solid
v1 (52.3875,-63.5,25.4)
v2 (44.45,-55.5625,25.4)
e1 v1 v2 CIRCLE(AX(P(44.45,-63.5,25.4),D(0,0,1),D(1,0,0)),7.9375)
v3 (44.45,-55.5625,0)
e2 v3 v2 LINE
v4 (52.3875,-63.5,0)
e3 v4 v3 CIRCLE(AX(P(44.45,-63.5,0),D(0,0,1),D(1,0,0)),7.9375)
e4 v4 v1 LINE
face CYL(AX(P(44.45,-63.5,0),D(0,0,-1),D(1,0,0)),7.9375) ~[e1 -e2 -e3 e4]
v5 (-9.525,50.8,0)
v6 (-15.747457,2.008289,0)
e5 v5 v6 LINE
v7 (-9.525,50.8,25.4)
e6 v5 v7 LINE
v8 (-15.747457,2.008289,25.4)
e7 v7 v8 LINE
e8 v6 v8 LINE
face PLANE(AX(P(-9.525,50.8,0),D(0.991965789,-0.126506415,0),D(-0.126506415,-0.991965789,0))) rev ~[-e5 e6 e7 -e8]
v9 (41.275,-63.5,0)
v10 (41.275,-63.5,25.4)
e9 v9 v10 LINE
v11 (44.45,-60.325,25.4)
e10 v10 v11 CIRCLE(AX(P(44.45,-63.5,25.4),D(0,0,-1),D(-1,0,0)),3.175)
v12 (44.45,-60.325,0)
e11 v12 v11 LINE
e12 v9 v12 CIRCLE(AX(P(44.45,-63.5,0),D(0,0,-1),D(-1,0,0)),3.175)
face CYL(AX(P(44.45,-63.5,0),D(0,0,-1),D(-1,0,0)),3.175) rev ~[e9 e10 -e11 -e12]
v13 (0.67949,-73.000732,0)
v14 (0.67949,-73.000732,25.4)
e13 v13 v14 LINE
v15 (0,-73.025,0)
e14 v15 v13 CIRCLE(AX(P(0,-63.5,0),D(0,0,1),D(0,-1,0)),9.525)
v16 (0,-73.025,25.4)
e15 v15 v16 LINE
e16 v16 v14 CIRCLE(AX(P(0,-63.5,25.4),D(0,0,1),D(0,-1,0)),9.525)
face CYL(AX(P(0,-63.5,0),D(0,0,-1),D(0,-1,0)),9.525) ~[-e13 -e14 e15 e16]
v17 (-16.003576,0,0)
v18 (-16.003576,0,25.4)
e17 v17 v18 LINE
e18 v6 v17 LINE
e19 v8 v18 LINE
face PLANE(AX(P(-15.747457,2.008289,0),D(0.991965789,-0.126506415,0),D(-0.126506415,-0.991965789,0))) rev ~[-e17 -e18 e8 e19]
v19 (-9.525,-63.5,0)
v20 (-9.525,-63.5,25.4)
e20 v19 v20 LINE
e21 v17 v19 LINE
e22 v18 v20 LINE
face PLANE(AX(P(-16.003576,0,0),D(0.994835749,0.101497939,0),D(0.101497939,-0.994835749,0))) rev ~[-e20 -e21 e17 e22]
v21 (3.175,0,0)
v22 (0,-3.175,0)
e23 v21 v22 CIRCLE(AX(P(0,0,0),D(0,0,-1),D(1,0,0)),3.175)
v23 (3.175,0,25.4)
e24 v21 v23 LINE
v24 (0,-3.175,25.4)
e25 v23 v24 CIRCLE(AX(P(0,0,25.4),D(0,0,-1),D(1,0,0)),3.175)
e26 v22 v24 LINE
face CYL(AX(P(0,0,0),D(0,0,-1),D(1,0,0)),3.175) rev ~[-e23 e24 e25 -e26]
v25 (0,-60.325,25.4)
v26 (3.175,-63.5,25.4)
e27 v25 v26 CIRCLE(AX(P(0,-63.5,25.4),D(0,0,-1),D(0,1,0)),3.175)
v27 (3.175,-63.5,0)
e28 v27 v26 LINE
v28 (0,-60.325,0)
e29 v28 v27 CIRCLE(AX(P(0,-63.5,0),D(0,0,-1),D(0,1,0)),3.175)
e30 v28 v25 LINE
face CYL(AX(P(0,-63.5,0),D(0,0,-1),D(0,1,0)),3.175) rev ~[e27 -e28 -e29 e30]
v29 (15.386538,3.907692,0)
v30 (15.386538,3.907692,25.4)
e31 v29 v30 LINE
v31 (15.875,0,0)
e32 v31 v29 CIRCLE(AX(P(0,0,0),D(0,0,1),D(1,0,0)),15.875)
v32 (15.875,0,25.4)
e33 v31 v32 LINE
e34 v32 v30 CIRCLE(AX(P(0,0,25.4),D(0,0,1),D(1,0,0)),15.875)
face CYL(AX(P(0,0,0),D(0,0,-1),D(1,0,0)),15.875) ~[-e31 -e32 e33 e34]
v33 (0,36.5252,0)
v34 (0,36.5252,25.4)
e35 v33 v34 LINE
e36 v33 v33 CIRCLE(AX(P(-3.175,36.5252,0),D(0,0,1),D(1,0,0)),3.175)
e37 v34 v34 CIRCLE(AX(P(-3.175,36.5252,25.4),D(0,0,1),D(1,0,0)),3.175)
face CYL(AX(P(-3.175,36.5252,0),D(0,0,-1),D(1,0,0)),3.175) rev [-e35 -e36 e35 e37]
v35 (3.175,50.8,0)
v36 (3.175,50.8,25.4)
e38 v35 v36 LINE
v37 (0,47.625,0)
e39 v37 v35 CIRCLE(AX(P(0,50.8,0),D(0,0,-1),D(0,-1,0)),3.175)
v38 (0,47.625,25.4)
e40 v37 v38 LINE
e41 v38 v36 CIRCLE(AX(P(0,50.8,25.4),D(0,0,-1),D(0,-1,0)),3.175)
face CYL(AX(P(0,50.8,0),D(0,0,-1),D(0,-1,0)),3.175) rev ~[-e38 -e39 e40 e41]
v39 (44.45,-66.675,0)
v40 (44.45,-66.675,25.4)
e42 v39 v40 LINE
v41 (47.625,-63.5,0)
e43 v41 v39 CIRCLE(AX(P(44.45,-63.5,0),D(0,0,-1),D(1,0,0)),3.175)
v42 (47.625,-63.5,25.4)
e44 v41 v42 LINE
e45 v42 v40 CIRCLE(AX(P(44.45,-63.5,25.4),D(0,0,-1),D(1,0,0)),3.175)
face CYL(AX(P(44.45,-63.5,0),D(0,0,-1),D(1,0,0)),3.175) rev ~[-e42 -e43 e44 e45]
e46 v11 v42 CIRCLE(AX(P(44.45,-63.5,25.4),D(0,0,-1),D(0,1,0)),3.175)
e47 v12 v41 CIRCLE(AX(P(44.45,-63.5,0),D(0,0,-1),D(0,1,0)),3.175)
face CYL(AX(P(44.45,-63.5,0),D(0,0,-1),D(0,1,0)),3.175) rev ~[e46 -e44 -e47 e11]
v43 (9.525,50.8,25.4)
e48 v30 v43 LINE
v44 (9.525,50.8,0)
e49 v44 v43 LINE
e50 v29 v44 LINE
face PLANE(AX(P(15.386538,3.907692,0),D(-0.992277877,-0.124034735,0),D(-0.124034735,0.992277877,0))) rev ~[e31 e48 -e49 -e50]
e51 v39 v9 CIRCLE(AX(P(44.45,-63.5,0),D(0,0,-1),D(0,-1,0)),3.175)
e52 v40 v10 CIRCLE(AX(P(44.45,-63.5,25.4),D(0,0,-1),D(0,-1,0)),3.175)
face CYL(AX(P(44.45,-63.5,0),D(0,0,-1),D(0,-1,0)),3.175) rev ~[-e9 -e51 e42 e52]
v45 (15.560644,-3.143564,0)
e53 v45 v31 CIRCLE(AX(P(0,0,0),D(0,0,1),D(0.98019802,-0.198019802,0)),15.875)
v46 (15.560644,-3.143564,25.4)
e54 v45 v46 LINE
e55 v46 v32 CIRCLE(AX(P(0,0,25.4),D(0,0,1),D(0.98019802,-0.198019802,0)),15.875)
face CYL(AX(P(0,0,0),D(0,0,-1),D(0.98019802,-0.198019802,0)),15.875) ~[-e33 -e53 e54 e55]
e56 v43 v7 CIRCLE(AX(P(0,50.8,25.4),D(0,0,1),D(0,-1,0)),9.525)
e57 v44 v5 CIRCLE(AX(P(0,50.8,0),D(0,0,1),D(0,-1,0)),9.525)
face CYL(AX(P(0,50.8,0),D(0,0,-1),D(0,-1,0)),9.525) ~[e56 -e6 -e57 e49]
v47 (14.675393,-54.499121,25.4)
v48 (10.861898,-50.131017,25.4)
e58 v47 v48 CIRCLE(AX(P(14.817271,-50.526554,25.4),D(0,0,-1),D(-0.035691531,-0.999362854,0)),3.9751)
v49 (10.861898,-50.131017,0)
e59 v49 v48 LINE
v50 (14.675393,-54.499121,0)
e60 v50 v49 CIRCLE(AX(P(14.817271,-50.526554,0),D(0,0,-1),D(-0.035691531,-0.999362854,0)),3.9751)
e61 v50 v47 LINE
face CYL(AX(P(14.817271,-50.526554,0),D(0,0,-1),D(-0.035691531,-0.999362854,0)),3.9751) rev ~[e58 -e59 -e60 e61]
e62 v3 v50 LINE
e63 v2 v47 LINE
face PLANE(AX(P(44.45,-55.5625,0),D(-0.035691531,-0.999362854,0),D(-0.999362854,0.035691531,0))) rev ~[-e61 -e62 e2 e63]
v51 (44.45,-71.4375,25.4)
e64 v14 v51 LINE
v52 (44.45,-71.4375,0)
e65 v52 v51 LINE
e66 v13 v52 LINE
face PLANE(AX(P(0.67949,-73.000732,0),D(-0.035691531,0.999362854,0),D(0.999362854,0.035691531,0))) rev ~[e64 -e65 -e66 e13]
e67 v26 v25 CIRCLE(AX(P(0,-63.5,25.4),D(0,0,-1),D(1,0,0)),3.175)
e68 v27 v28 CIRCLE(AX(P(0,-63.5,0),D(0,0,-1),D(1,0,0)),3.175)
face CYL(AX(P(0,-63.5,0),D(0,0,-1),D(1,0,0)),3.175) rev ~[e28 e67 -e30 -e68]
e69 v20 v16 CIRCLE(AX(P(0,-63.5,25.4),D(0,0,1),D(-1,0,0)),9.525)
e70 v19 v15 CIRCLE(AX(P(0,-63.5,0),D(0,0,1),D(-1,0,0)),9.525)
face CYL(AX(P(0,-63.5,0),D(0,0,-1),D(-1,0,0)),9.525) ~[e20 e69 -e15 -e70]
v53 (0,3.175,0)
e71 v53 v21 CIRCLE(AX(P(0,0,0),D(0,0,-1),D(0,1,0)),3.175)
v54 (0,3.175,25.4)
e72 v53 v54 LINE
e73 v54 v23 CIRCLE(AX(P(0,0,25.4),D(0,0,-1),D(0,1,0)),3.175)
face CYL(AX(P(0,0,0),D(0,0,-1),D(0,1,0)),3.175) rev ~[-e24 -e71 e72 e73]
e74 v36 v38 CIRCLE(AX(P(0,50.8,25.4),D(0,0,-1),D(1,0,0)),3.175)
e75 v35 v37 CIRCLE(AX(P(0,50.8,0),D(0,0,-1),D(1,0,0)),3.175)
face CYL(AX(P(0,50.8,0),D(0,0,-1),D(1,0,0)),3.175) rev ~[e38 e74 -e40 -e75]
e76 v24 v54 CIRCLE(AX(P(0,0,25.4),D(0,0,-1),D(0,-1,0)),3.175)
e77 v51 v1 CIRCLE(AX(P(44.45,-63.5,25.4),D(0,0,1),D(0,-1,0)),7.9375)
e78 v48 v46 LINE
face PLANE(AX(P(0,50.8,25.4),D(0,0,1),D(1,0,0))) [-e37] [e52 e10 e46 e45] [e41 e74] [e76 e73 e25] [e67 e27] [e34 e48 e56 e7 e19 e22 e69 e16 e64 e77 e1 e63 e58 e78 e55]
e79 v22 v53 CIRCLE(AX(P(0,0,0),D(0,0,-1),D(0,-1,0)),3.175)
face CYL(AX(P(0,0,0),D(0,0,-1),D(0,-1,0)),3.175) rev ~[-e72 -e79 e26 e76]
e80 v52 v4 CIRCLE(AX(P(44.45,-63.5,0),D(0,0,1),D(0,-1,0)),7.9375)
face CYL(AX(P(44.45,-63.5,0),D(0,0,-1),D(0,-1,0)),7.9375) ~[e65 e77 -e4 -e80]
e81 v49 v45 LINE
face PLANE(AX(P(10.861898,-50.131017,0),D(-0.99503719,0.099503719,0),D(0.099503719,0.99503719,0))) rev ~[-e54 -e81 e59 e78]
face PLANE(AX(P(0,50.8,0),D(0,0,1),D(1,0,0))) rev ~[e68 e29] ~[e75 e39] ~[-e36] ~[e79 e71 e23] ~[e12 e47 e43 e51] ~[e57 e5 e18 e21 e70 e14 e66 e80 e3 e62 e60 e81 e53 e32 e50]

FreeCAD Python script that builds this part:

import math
import FreeCAD as App
import Part
import Sketcher

V = App.Vector
Q = App.Units.Quantity

doc = App.newDocument("Part")
body = doc.addObject("PartDesign::Body", "Body")

# Sketch on XY plane
sketch1 = body.newObject("Sketcher::SketchObject", "Sketch")
sketch1.AttachmentSupport = (doc.getObject("XY_Plane"), [""])
sketch1.MapMode = "FlatFace"
sketch1.addGeometry(Part.ArcOfCircle(Part.Circle(V(0, -63.5, 0), V(0, 0, 1), 9.525), math.radians(-90), math.radians(-85.909183)), False)
sketch1.addGeometry(Part.LineSegment(V(0.67949, -73.000732, 0), V(44.45, -71.4375, 0)), False)
sketch1.addGeometry(Part.ArcOfCircle(Part.Circle(V(44.45, -63.5, 0), V(0, 0, 1), 7.9375), math.radians(-90), math.radians(0)), False)
sketch1.addGeometry(Part.ArcOfCircle(Part.Circle(V(44.45, -63.5, 0), V(0, 0, 1), 7.9375), math.radians(0), math.radians(90)), False)
sketch1.addGeometry(Part.LineSegment(V(44.45, -55.5625, 0), V(14.675393, -54.499121, 0)), False)
sketch1.addGeometry(Part.ArcOfCircle(Part.Circle(V(14.817271, -50.526554, 0), V(0, 0, 1), 3.9751), math.radians(174.289407), math.radians(267.954592)), False)
sketch1.addGeometry(Part.LineSegment(V(10.861898, -50.131017, 0), V(15.560644, -3.143564, 0)), False)
sketch1.addGeometry(Part.ArcOfCircle(Part.Circle(V(0, 0, 0), V(0, 0, 1), 15.875), math.radians(-11.421186), math.radians(0)), False)
sketch1.addGeometry(Part.ArcOfCircle(Part.Circle(V(0, 0, 0), V(0, 0, 1), 15.875), math.radians(0), math.radians(14.250033)), False)
sketch1.addGeometry(Part.LineSegment(V(15.386538, 3.907692, 0), V(9.525, 50.8, 0)), False)
sketch1.addGeometry(Part.ArcOfCircle(Part.Circle(V(0, 50.8, 0), V(0, 0, 1), 9.525), math.radians(0), math.radians(180)), False)
sketch1.addGeometry(Part.LineSegment(V(-9.525, 50.8, 0), V(-15.747457, 2.008289, 0)), False)
sketch1.addGeometry(Part.LineSegment(V(-15.747457, 2.008289, 0), V(-16.003576, 0, 0)), False)
sketch1.addGeometry(Part.LineSegment(V(-16.003576, 0, 0), V(-9.525, -63.5, 0)), False)
sketch1.addGeometry(Part.ArcOfCircle(Part.Circle(V(0, -63.5, 0), V(0, 0, 1), 9.525), math.radians(180), math.radians(270)), False)
sketch1.addGeometry(Part.ArcOfCircle(Part.Circle(V(44.45, -63.5, 0), V(0, 0, 1), 3.175), math.radians(180), math.radians(270)), False)
sketch1.addGeometry(Part.ArcOfCircle(Part.Circle(V(44.45, -63.5, 0), V(0, 0, 1), 3.175), math.radians(90), math.radians(180)), False)
sketch1.addGeometry(Part.ArcOfCircle(Part.Circle(V(44.45, -63.5, 0), V(0, 0, 1), 3.175), math.radians(0), math.radians(90)), False)
sketch1.addGeometry(Part.ArcOfCircle(Part.Circle(V(44.45, -63.5, 0), V(0, 0, 1), 3.175), math.radians(-90), math.radians(0)), False)
sketch1.addGeometry(Part.ArcOfCircle(Part.Circle(V(0, -63.5, 0), V(0, 0, 1), 3.175), math.radians(90), math.radians(360)), False)
sketch1.addGeometry(Part.ArcOfCircle(Part.Circle(V(0, -63.5, 0), V(0, 0, 1), 3.175), math.radians(0), math.radians(90)), False)
sketch1.addGeometry(Part.ArcOfCircle(Part.Circle(V(0, 0, 0), V(0, 0, 1), 3.175), math.radians(0), math.radians(90)), False)
sketch1.addGeometry(Part.ArcOfCircle(Part.Circle(V(0, 0, 0), V(0, 0, 1), 3.175), math.radians(-90), math.radians(0)), False)
sketch1.addGeometry(Part.ArcOfCircle(Part.Circle(V(0, 0, 0), V(0, 0, 1), 3.175), math.radians(90), math.radians(270)), False)
sketch1.addGeometry(Part.Circle(V(-3.175, 36.5252, 0), V(0, 0, 1), 3.175), False)
sketch1.addGeometry(Part.ArcOfCircle(Part.Circle(V(0, 50.8, 0), V(0, 0, 1), 3.175), math.radians(0), math.radians(270)), False)
sketch1.addGeometry(Part.ArcOfCircle(Part.Circle(V(0, 50.8, 0), V(0, 0, 1), 3.175), math.radians(-90), math.radians(0)), False)
sketch1.addConstraint(Sketcher.Constraint("Coincident", 0, 2, 1, 1))
sketch1.addConstraint(Sketcher.Constraint("Coincident", 1, 2, 2, 1))
sketch1.addConstraint(Sketcher.Constraint("Coincident", 2, 2, 3, 1))
sketch1.addConstraint(Sketcher.Constraint("Coincident", 3, 2, 4, 1))
sketch1.addConstraint(Sketcher.Constraint("Coincident", 4, 2, 5, 2))
sketch1.addConstraint(Sketcher.Constraint("Coincident", 5, 1, 6, 1))
sketch1.addConstraint(Sketcher.Constraint("Coincident", 6, 2, 7, 1))
sketch1.addConstraint(Sketcher.Constraint("Coincident", 7, 2, 8, 1))
sketch1.addConstraint(Sketcher.Constraint("Coincident", 8, 2, 9, 1))
sketch1.addConstraint(Sketcher.Constraint("Coincident", 9, 2, 10, 1))
sketch1.addConstraint(Sketcher.Constraint("Coincident", 10, 2, 11, 1))
sketch1.addConstraint(Sketcher.Constraint("Coincident", 11, 2, 12, 1))
sketch1.addConstraint(Sketcher.Constraint("Coincident", 12, 2, 13, 1))
sketch1.addConstraint(Sketcher.Constraint("Coincident", 13, 2, 14, 1))
sketch1.addConstraint(Sketcher.Constraint("Coincident", 14, 2, 0, 1))
sketch1.addConstraint(Sketcher.Constraint("Coincident", 15, 1, 16, 2))
sketch1.addConstraint(Sketcher.Constraint("Coincident", 16, 1, 17, 2))
sketch1.addConstraint(Sketcher.Constraint("Coincident", 17, 1, 18, 2))
sketch1.addConstraint(Sketcher.Constraint("Coincident", 18, 1, 15, 2))
sketch1.addConstraint(Sketcher.Constraint("Coincident", 19, 1, 20, 2))
sketch1.addConstraint(Sketcher.Constraint("Coincident", 20, 1, 19, 2))
sketch1.addConstraint(Sketcher.Constraint("Coincident", 21, 1, 22, 2))
sketch1.addConstraint(Sketcher.Constraint("Coincident", 22, 1, 23, 2))
sketch1.addConstraint(Sketcher.Constraint("Coincident", 23, 1, 21, 2))
sketch1.addConstraint(Sketcher.Constraint("Coincident", 25, 1, 26, 2))
sketch1.addConstraint(Sketcher.Constraint("Coincident", 26, 1, 25, 2))
sketch1.addConstraint(Sketcher.Constraint("Coincident", 7, 3, -1, 1))
sketch1.addConstraint(Sketcher.Constraint("Coincident", 8, 3, -1, 1))
sketch1.addConstraint(Sketcher.Constraint("Coincident", 21, 3, -1, 1))
sketch1.addConstraint(Sketcher.Constraint("Coincident", 22, 3, -1, 1))
sketch1.addConstraint(Sketcher.Constraint("Coincident", 3, 3, 2, 3))
sketch1.addConstraint(Sketcher.Constraint("Coincident", 14, 3, 0, 3))
sketch1.addConstraint(Sketcher.Constraint("Coincident", 15, 3, 2, 3))
sketch1.addConstraint(Sketcher.Constraint("Coincident", 16, 3, 2, 3))
sketch1.addConstraint(Sketcher.Constraint("Coincident", 17, 3, 2, 3))
sketch1.addConstraint(Sketcher.Constraint("Coincident", 19, 3, 0, 3))
sketch1.addConstraint(Sketcher.Constraint("Coincident", 25, 3, 10, 3))
sketch1.addConstraint(Sketcher.Constraint("PointOnObject", 0, 3, -2))
sketch1.addConstraint(Sketcher.Constraint("PointOnObject", 10, 3, -2))
sketch1.addConstraint(Sketcher.Constraint("PointOnObject", 20, 3, -2))
sketch1.addConstraint(Sketcher.Constraint("PointOnObject", 26, 3, -2))
sketch1.addConstraint(Sketcher.Constraint("PointOnObject", 7, 2, -1))
sketch1.addConstraint(Sketcher.Constraint("PointOnObject", 12, 2, -1))
sketch1.addConstraint(Sketcher.Constraint("PointOnObject", 14, 2, -2))
sketch1.addConstraint(Sketcher.Constraint("PointOnObject", 19, 1, -2))
sketch1.addConstraint(Sketcher.Constraint("PointOnObject", 21, 1, -1))
sketch1.addConstraint(Sketcher.Constraint("PointOnObject", 22, 1, -2))
sketch1.addConstraint(Sketcher.Constraint("PointOnObject", 23, 1, -2))
sketch1.addConstraint(Sketcher.Constraint("PointOnObject", 26, 1, -2))
sketch1.addConstraint(Sketcher.Constraint("Diameter", 24, Q("0.25 in")))
sketch1.addConstraint(Sketcher.Constraint("DistanceY", -1, 1, 10, 3, Q("2 in")))
sketch1.addConstraint(Sketcher.Constraint("DistanceY", -1, 1, 9, 2, Q("2 in")))
sketch1.addConstraint(Sketcher.Constraint("DistanceY", -1, 1, 10, 2, Q("2 in")))
sketch1.addConstraint(Sketcher.Constraint("DistanceY", -1, 1, 25, 1, Q("2 in")))
sketch1.addConstraint(Sketcher.Constraint("Radius", 0, Q("0.375 in")))
sketch1.addConstraint(Sketcher.Constraint("Radius", 2, Q("0.3125 in")))
sketch1.addConstraint(Sketcher.Constraint("Radius", 7, Q("0.625 in")))
sketch1.addConstraint(Sketcher.Constraint("Radius", 10, Q("0.375 in")))
sketch1.addConstraint(Sketcher.Constraint("Radius", 15, Q("0.125 in")))
sketch1.addConstraint(Sketcher.Constraint("Radius", 18, Q("0.125 in")))
sketch1.addConstraint(Sketcher.Constraint("Radius", 19, Q("0.125 in")))
sketch1.addConstraint(Sketcher.Constraint("Radius", 21, Q("0.125 in")))
sketch1.addConstraint(Sketcher.Constraint("Radius", 25, Q("0.125 in")))
sketch1.addConstraint(Sketcher.Constraint("DistanceY", 0, 3, -1, 1, Q("2.5 in")))
sketch1.addConstraint(Sketcher.Constraint("DistanceY", 2, 3, -1, 1, Q("2.5 in")))
sketch1.addConstraint(Sketcher.Constraint("DistanceY", 2, 2, -1, 1, Q("2.5 in")))
sketch1.addConstraint(Sketcher.Constraint("DistanceY", 13, 2, -1, 1, Q("2.5 in")))
sketch1.addConstraint(Sketcher.Constraint("DistanceY", 15, 1, -1, 1, Q("2.5 in")))
sketch1.addConstraint(Sketcher.Constraint("DistanceY", 17, 1, -1, 1, Q("2.5 in")))
sketch1.addConstraint(Sketcher.Constraint("DistanceY", 20, 1, -1, 1, Q("2.5 in")))
sketch1.addConstraint(Sketcher.Constraint("Radius", 5, Q("0.1565 in")))
sketch1.addConstraint(Sketcher.Constraint("DistanceX", 24, 3, 9, 2, Q("0.5 in")))
sketch1.addConstraint(Sketcher.Constraint("DistanceX", -1, 1, 2, 3, Q("1.75 in")))
sketch1.addConstraint(Sketcher.Constraint("DistanceX", -1, 1, 1, 2, Q("1.75 in")))
sketch1.addConstraint(Sketcher.Constraint("DistanceX", -1, 1, 3, 2, Q("1.75 in")))
sketch1.addConstraint(Sketcher.Constraint("DistanceX", -1, 1, 16, 1, Q("1.75 in")))
sketch1.addConstraint(Sketcher.Constraint("DistanceX", -1, 1, 18, 1, Q("1.75 in")))
sketch1.addConstraint(Sketcher.Constraint("DistanceY", -1, 1, 24, 3, Q("1.438 in")))
sketch1.addConstraint(Sketcher.Constraint("DistanceX", 24, 3, 23, 3, Q("0.125 in")))
sketch1.addConstraint(Sketcher.Constraint("DistanceX", -1, 1, 5, 1, 10.861898))
sketch1.addConstraint(Sketcher.Constraint("Distance", 4, 29.79359))
sketch1.addConstraint(Sketcher.Constraint("Distance", 11, 49.186888))
sketch1.addConstraint(Sketcher.Constraint("DistanceX", -1, 1, 5, 3, 14.817271))
sketch1.addConstraint(Sketcher.Constraint("DistanceX", -1, 1, 0, 2, 0.67949))
sketch1.addConstraint(Sketcher.Constraint("DistanceY", 4, 2, -1, 1, 54.499121))
sketch1.addConstraint(Sketcher.Constraint("DistanceX", -1, 1, 8, 2, 15.386538))
sketch1.addConstraint(Sketcher.Constraint("DistanceY", -1, 1, 11, 2, 2.008289))
sketch1.addConstraint(Sketcher.Constraint("DistanceX", 12, 2, 11, 2, 0.256119))
sketch1.addConstraint(Sketcher.Constraint("Distance", 6, 47.221805))
pad1 = body.newObject("PartDesign::Pad", "Pad")
pad1.Profile = sketch1
pad1.Length = Q("1 in")

doc.recompute()
